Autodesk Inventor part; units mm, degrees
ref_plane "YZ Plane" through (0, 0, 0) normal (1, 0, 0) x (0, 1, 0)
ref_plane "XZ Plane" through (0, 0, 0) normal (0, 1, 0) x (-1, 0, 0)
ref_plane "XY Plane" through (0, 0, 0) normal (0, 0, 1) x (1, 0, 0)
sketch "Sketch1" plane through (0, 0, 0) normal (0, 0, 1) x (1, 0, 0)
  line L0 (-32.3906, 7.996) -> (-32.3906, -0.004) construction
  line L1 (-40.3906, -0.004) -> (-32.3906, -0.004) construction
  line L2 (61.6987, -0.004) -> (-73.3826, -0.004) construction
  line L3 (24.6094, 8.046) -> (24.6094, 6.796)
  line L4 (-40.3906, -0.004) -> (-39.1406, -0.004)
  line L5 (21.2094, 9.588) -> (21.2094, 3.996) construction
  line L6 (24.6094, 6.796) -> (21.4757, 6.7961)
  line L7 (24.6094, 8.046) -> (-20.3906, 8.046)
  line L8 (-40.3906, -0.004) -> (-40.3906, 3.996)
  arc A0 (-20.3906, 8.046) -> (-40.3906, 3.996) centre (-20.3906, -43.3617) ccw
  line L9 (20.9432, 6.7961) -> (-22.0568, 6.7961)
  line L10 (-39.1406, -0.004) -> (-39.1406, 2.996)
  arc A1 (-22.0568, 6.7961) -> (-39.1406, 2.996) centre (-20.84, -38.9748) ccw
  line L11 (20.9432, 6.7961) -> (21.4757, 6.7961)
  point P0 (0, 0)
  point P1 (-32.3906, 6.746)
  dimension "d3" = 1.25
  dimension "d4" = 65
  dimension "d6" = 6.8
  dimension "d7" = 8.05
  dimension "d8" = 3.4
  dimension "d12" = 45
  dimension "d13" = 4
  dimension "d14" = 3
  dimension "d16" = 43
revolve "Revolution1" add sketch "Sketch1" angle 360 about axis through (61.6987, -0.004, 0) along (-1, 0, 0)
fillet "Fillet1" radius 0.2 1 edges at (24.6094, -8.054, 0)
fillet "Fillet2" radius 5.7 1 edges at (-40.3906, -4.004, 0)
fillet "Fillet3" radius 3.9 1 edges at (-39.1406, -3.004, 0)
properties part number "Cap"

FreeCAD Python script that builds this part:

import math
import FreeCAD as App
import Part
import Sketcher

V = App.Vector
Q = App.Units.Quantity


def edges_at(feature, points):
    """Names of the edges that pass closest to the given points."""
    edges = feature.Shape.Edges
    near = lambda p: min(range(len(edges)), key=lambda i: edges[i].distToShape(Part.Vertex(*p))[0])
    return sorted({f"Edge{near(p) + 1}" for p in points})

doc = App.newDocument("Part")
body = doc.addObject("PartDesign::Body", "Body")

# Sketch on XY plane
sketch1 = doc.addObject("Sketcher::SketchObject", "Sketch")
body.addObject(sketch1)
sketch1.AttachmentSupport = (doc.XY_Plane, [""])
sketch1.MapMode = "FlatFace"
sketch1.addGeometry([
    Part.LineSegment(V(24.6094, 6.796, 0), V(24.6094, 8.046, 0)),  # 0
    Part.LineSegment(V(24.6094, 8.046, 0), V(-20.3906, 8.046, 0)),  # 1
    Part.ArcOfCircle(Part.Circle(V(-20.3906, -43.3617, 0), V(0, 0, 1), 51.4077), math.radians(90), math.radians(112.895199)),  # 2
    Part.LineSegment(V(-40.3906, 3.996, 0), V(-40.3906, -0.004, 0)),  # 3
    Part.LineSegment(V(-40.3906, -0.004, 0), V(-39.1406, -0.004, 0)),  # 4
    Part.LineSegment(V(-39.1406, -0.004, 0), V(-39.1406, 2.996, 0)),  # 5
    Part.ArcOfCircle(Part.Circle(V(-20.83985, -38.976018, 0), V(0, 0, 1), 45.788293), math.radians(91.522973), math.radians(113.558292)),  # 6
    Part.LineSegment(V(-22.0568, 6.7961, 0), V(21.4757, 6.7961, 0)),  # 7
    Part.LineSegment(V(21.4757, 6.7961, 0), V(24.6094, 6.796, 0)),  # 8
], False)
sketch1.addGeometry(Part.LineSegment(V(24.6094, -0.004, 0), V(-40.3906, -0.004, 0)), True)  # axis
sketch1.addConstraint([
    Sketcher.Constraint("Coincident", 0, 2, 1, 1),
    Sketcher.Constraint("Tangent", 1, 2, 2, 1),
    Sketcher.Constraint("Coincident", 2, 2, 3, 1),
    Sketcher.Constraint("Coincident", 3, 2, 4, 1),
    Sketcher.Constraint("Coincident", 4, 2, 5, 1),
    Sketcher.Constraint("Coincident", 5, 2, 6, 2),
    Sketcher.Constraint("Coincident", 6, 1, 7, 1),
    Sketcher.Constraint("Coincident", 7, 2, 8, 1),
    Sketcher.Constraint("Coincident", 8, 2, 0, 1),
    Sketcher.Constraint("Vertical", 0),
    Sketcher.Constraint("Horizontal", 1),
    Sketcher.Constraint("Vertical", 3),
    Sketcher.Constraint("Horizontal", 4),
    Sketcher.Constraint("Vertical", 5),
    Sketcher.Constraint("Horizontal", 7),
    Sketcher.Constraint("Horizontal", 8),
    Sketcher.Constraint("Horizontal", 9),
    Sketcher.Constraint("Coincident", 9, 2, 3, 2),
    Sketcher.Constraint("Vertical", 8, 2, 9, 1),
    Sketcher.Constraint("Equal", 4, 0),
    Sketcher.Constraint("DistanceX", 1, 2, 1, 1, Q("45 mm")),
    Sketcher.Constraint("DistanceX", 9, 2, 9, 1, Q("65 mm")),
    Sketcher.Constraint("DistanceY", 3, 2, 3, 1, Q("4 mm")),
    Sketcher.Constraint("DistanceY", 5, 1, 5, 2, Q("3 mm")),
    Sketcher.Constraint("DistanceX", 4, 1, 4, 2, Q("1.25 mm")),
    Sketcher.Constraint("DistanceY", 4, 2, 6, 1, Q("6.8 mm")),
    Sketcher.Constraint("Radius", 6, Q("45.7883 mm")),
    Sketcher.Constraint("DistanceX", 7, 1, 7, 2, Q("43.5325 mm")),
    Sketcher.Constraint("DistanceX", 8, 1, 8, 2, Q("3.1337 mm")),
    Sketcher.Constraint("DistanceY", 6, 3, -1, 1, Q("38.976 mm")),
    Sketcher.Constraint("DistanceX", 2, 3, -1, 1, Q("20.3906 mm")),
])
revolution = doc.addObject("PartDesign::Revolution", "Revolution")
body.addObject(revolution)
revolution.Profile = sketch1
revolution.ReferenceAxis = (sketch1, ["Axis0"])
revolution.Angle = 360
doc.recompute()

fillet = doc.addObject("PartDesign::Fillet", "Fillet")
body.addObject(fillet)
fillet.Base = (revolution, edges_at(revolution, [(24.609, -8.054, 0)]))
fillet.Radius = 0.2
doc.recompute()

fillet2 = doc.addObject("PartDesign::Fillet", "Fillet001")
body.addObject(fillet2)
fillet2.Base = (fillet, edges_at(fillet, [(-40.391, -4.004, 0)]))
fillet2.Radius = 5.7
doc.recompute()

fillet3 = doc.addObject("PartDesign::Fillet", "Fillet002")
body.addObject(fillet3)
fillet3.Base = (fillet2, edges_at(fillet2, [(-39.141, -3.004, 0)]))
fillet3.Radius = 3.9

doc.recompute()
